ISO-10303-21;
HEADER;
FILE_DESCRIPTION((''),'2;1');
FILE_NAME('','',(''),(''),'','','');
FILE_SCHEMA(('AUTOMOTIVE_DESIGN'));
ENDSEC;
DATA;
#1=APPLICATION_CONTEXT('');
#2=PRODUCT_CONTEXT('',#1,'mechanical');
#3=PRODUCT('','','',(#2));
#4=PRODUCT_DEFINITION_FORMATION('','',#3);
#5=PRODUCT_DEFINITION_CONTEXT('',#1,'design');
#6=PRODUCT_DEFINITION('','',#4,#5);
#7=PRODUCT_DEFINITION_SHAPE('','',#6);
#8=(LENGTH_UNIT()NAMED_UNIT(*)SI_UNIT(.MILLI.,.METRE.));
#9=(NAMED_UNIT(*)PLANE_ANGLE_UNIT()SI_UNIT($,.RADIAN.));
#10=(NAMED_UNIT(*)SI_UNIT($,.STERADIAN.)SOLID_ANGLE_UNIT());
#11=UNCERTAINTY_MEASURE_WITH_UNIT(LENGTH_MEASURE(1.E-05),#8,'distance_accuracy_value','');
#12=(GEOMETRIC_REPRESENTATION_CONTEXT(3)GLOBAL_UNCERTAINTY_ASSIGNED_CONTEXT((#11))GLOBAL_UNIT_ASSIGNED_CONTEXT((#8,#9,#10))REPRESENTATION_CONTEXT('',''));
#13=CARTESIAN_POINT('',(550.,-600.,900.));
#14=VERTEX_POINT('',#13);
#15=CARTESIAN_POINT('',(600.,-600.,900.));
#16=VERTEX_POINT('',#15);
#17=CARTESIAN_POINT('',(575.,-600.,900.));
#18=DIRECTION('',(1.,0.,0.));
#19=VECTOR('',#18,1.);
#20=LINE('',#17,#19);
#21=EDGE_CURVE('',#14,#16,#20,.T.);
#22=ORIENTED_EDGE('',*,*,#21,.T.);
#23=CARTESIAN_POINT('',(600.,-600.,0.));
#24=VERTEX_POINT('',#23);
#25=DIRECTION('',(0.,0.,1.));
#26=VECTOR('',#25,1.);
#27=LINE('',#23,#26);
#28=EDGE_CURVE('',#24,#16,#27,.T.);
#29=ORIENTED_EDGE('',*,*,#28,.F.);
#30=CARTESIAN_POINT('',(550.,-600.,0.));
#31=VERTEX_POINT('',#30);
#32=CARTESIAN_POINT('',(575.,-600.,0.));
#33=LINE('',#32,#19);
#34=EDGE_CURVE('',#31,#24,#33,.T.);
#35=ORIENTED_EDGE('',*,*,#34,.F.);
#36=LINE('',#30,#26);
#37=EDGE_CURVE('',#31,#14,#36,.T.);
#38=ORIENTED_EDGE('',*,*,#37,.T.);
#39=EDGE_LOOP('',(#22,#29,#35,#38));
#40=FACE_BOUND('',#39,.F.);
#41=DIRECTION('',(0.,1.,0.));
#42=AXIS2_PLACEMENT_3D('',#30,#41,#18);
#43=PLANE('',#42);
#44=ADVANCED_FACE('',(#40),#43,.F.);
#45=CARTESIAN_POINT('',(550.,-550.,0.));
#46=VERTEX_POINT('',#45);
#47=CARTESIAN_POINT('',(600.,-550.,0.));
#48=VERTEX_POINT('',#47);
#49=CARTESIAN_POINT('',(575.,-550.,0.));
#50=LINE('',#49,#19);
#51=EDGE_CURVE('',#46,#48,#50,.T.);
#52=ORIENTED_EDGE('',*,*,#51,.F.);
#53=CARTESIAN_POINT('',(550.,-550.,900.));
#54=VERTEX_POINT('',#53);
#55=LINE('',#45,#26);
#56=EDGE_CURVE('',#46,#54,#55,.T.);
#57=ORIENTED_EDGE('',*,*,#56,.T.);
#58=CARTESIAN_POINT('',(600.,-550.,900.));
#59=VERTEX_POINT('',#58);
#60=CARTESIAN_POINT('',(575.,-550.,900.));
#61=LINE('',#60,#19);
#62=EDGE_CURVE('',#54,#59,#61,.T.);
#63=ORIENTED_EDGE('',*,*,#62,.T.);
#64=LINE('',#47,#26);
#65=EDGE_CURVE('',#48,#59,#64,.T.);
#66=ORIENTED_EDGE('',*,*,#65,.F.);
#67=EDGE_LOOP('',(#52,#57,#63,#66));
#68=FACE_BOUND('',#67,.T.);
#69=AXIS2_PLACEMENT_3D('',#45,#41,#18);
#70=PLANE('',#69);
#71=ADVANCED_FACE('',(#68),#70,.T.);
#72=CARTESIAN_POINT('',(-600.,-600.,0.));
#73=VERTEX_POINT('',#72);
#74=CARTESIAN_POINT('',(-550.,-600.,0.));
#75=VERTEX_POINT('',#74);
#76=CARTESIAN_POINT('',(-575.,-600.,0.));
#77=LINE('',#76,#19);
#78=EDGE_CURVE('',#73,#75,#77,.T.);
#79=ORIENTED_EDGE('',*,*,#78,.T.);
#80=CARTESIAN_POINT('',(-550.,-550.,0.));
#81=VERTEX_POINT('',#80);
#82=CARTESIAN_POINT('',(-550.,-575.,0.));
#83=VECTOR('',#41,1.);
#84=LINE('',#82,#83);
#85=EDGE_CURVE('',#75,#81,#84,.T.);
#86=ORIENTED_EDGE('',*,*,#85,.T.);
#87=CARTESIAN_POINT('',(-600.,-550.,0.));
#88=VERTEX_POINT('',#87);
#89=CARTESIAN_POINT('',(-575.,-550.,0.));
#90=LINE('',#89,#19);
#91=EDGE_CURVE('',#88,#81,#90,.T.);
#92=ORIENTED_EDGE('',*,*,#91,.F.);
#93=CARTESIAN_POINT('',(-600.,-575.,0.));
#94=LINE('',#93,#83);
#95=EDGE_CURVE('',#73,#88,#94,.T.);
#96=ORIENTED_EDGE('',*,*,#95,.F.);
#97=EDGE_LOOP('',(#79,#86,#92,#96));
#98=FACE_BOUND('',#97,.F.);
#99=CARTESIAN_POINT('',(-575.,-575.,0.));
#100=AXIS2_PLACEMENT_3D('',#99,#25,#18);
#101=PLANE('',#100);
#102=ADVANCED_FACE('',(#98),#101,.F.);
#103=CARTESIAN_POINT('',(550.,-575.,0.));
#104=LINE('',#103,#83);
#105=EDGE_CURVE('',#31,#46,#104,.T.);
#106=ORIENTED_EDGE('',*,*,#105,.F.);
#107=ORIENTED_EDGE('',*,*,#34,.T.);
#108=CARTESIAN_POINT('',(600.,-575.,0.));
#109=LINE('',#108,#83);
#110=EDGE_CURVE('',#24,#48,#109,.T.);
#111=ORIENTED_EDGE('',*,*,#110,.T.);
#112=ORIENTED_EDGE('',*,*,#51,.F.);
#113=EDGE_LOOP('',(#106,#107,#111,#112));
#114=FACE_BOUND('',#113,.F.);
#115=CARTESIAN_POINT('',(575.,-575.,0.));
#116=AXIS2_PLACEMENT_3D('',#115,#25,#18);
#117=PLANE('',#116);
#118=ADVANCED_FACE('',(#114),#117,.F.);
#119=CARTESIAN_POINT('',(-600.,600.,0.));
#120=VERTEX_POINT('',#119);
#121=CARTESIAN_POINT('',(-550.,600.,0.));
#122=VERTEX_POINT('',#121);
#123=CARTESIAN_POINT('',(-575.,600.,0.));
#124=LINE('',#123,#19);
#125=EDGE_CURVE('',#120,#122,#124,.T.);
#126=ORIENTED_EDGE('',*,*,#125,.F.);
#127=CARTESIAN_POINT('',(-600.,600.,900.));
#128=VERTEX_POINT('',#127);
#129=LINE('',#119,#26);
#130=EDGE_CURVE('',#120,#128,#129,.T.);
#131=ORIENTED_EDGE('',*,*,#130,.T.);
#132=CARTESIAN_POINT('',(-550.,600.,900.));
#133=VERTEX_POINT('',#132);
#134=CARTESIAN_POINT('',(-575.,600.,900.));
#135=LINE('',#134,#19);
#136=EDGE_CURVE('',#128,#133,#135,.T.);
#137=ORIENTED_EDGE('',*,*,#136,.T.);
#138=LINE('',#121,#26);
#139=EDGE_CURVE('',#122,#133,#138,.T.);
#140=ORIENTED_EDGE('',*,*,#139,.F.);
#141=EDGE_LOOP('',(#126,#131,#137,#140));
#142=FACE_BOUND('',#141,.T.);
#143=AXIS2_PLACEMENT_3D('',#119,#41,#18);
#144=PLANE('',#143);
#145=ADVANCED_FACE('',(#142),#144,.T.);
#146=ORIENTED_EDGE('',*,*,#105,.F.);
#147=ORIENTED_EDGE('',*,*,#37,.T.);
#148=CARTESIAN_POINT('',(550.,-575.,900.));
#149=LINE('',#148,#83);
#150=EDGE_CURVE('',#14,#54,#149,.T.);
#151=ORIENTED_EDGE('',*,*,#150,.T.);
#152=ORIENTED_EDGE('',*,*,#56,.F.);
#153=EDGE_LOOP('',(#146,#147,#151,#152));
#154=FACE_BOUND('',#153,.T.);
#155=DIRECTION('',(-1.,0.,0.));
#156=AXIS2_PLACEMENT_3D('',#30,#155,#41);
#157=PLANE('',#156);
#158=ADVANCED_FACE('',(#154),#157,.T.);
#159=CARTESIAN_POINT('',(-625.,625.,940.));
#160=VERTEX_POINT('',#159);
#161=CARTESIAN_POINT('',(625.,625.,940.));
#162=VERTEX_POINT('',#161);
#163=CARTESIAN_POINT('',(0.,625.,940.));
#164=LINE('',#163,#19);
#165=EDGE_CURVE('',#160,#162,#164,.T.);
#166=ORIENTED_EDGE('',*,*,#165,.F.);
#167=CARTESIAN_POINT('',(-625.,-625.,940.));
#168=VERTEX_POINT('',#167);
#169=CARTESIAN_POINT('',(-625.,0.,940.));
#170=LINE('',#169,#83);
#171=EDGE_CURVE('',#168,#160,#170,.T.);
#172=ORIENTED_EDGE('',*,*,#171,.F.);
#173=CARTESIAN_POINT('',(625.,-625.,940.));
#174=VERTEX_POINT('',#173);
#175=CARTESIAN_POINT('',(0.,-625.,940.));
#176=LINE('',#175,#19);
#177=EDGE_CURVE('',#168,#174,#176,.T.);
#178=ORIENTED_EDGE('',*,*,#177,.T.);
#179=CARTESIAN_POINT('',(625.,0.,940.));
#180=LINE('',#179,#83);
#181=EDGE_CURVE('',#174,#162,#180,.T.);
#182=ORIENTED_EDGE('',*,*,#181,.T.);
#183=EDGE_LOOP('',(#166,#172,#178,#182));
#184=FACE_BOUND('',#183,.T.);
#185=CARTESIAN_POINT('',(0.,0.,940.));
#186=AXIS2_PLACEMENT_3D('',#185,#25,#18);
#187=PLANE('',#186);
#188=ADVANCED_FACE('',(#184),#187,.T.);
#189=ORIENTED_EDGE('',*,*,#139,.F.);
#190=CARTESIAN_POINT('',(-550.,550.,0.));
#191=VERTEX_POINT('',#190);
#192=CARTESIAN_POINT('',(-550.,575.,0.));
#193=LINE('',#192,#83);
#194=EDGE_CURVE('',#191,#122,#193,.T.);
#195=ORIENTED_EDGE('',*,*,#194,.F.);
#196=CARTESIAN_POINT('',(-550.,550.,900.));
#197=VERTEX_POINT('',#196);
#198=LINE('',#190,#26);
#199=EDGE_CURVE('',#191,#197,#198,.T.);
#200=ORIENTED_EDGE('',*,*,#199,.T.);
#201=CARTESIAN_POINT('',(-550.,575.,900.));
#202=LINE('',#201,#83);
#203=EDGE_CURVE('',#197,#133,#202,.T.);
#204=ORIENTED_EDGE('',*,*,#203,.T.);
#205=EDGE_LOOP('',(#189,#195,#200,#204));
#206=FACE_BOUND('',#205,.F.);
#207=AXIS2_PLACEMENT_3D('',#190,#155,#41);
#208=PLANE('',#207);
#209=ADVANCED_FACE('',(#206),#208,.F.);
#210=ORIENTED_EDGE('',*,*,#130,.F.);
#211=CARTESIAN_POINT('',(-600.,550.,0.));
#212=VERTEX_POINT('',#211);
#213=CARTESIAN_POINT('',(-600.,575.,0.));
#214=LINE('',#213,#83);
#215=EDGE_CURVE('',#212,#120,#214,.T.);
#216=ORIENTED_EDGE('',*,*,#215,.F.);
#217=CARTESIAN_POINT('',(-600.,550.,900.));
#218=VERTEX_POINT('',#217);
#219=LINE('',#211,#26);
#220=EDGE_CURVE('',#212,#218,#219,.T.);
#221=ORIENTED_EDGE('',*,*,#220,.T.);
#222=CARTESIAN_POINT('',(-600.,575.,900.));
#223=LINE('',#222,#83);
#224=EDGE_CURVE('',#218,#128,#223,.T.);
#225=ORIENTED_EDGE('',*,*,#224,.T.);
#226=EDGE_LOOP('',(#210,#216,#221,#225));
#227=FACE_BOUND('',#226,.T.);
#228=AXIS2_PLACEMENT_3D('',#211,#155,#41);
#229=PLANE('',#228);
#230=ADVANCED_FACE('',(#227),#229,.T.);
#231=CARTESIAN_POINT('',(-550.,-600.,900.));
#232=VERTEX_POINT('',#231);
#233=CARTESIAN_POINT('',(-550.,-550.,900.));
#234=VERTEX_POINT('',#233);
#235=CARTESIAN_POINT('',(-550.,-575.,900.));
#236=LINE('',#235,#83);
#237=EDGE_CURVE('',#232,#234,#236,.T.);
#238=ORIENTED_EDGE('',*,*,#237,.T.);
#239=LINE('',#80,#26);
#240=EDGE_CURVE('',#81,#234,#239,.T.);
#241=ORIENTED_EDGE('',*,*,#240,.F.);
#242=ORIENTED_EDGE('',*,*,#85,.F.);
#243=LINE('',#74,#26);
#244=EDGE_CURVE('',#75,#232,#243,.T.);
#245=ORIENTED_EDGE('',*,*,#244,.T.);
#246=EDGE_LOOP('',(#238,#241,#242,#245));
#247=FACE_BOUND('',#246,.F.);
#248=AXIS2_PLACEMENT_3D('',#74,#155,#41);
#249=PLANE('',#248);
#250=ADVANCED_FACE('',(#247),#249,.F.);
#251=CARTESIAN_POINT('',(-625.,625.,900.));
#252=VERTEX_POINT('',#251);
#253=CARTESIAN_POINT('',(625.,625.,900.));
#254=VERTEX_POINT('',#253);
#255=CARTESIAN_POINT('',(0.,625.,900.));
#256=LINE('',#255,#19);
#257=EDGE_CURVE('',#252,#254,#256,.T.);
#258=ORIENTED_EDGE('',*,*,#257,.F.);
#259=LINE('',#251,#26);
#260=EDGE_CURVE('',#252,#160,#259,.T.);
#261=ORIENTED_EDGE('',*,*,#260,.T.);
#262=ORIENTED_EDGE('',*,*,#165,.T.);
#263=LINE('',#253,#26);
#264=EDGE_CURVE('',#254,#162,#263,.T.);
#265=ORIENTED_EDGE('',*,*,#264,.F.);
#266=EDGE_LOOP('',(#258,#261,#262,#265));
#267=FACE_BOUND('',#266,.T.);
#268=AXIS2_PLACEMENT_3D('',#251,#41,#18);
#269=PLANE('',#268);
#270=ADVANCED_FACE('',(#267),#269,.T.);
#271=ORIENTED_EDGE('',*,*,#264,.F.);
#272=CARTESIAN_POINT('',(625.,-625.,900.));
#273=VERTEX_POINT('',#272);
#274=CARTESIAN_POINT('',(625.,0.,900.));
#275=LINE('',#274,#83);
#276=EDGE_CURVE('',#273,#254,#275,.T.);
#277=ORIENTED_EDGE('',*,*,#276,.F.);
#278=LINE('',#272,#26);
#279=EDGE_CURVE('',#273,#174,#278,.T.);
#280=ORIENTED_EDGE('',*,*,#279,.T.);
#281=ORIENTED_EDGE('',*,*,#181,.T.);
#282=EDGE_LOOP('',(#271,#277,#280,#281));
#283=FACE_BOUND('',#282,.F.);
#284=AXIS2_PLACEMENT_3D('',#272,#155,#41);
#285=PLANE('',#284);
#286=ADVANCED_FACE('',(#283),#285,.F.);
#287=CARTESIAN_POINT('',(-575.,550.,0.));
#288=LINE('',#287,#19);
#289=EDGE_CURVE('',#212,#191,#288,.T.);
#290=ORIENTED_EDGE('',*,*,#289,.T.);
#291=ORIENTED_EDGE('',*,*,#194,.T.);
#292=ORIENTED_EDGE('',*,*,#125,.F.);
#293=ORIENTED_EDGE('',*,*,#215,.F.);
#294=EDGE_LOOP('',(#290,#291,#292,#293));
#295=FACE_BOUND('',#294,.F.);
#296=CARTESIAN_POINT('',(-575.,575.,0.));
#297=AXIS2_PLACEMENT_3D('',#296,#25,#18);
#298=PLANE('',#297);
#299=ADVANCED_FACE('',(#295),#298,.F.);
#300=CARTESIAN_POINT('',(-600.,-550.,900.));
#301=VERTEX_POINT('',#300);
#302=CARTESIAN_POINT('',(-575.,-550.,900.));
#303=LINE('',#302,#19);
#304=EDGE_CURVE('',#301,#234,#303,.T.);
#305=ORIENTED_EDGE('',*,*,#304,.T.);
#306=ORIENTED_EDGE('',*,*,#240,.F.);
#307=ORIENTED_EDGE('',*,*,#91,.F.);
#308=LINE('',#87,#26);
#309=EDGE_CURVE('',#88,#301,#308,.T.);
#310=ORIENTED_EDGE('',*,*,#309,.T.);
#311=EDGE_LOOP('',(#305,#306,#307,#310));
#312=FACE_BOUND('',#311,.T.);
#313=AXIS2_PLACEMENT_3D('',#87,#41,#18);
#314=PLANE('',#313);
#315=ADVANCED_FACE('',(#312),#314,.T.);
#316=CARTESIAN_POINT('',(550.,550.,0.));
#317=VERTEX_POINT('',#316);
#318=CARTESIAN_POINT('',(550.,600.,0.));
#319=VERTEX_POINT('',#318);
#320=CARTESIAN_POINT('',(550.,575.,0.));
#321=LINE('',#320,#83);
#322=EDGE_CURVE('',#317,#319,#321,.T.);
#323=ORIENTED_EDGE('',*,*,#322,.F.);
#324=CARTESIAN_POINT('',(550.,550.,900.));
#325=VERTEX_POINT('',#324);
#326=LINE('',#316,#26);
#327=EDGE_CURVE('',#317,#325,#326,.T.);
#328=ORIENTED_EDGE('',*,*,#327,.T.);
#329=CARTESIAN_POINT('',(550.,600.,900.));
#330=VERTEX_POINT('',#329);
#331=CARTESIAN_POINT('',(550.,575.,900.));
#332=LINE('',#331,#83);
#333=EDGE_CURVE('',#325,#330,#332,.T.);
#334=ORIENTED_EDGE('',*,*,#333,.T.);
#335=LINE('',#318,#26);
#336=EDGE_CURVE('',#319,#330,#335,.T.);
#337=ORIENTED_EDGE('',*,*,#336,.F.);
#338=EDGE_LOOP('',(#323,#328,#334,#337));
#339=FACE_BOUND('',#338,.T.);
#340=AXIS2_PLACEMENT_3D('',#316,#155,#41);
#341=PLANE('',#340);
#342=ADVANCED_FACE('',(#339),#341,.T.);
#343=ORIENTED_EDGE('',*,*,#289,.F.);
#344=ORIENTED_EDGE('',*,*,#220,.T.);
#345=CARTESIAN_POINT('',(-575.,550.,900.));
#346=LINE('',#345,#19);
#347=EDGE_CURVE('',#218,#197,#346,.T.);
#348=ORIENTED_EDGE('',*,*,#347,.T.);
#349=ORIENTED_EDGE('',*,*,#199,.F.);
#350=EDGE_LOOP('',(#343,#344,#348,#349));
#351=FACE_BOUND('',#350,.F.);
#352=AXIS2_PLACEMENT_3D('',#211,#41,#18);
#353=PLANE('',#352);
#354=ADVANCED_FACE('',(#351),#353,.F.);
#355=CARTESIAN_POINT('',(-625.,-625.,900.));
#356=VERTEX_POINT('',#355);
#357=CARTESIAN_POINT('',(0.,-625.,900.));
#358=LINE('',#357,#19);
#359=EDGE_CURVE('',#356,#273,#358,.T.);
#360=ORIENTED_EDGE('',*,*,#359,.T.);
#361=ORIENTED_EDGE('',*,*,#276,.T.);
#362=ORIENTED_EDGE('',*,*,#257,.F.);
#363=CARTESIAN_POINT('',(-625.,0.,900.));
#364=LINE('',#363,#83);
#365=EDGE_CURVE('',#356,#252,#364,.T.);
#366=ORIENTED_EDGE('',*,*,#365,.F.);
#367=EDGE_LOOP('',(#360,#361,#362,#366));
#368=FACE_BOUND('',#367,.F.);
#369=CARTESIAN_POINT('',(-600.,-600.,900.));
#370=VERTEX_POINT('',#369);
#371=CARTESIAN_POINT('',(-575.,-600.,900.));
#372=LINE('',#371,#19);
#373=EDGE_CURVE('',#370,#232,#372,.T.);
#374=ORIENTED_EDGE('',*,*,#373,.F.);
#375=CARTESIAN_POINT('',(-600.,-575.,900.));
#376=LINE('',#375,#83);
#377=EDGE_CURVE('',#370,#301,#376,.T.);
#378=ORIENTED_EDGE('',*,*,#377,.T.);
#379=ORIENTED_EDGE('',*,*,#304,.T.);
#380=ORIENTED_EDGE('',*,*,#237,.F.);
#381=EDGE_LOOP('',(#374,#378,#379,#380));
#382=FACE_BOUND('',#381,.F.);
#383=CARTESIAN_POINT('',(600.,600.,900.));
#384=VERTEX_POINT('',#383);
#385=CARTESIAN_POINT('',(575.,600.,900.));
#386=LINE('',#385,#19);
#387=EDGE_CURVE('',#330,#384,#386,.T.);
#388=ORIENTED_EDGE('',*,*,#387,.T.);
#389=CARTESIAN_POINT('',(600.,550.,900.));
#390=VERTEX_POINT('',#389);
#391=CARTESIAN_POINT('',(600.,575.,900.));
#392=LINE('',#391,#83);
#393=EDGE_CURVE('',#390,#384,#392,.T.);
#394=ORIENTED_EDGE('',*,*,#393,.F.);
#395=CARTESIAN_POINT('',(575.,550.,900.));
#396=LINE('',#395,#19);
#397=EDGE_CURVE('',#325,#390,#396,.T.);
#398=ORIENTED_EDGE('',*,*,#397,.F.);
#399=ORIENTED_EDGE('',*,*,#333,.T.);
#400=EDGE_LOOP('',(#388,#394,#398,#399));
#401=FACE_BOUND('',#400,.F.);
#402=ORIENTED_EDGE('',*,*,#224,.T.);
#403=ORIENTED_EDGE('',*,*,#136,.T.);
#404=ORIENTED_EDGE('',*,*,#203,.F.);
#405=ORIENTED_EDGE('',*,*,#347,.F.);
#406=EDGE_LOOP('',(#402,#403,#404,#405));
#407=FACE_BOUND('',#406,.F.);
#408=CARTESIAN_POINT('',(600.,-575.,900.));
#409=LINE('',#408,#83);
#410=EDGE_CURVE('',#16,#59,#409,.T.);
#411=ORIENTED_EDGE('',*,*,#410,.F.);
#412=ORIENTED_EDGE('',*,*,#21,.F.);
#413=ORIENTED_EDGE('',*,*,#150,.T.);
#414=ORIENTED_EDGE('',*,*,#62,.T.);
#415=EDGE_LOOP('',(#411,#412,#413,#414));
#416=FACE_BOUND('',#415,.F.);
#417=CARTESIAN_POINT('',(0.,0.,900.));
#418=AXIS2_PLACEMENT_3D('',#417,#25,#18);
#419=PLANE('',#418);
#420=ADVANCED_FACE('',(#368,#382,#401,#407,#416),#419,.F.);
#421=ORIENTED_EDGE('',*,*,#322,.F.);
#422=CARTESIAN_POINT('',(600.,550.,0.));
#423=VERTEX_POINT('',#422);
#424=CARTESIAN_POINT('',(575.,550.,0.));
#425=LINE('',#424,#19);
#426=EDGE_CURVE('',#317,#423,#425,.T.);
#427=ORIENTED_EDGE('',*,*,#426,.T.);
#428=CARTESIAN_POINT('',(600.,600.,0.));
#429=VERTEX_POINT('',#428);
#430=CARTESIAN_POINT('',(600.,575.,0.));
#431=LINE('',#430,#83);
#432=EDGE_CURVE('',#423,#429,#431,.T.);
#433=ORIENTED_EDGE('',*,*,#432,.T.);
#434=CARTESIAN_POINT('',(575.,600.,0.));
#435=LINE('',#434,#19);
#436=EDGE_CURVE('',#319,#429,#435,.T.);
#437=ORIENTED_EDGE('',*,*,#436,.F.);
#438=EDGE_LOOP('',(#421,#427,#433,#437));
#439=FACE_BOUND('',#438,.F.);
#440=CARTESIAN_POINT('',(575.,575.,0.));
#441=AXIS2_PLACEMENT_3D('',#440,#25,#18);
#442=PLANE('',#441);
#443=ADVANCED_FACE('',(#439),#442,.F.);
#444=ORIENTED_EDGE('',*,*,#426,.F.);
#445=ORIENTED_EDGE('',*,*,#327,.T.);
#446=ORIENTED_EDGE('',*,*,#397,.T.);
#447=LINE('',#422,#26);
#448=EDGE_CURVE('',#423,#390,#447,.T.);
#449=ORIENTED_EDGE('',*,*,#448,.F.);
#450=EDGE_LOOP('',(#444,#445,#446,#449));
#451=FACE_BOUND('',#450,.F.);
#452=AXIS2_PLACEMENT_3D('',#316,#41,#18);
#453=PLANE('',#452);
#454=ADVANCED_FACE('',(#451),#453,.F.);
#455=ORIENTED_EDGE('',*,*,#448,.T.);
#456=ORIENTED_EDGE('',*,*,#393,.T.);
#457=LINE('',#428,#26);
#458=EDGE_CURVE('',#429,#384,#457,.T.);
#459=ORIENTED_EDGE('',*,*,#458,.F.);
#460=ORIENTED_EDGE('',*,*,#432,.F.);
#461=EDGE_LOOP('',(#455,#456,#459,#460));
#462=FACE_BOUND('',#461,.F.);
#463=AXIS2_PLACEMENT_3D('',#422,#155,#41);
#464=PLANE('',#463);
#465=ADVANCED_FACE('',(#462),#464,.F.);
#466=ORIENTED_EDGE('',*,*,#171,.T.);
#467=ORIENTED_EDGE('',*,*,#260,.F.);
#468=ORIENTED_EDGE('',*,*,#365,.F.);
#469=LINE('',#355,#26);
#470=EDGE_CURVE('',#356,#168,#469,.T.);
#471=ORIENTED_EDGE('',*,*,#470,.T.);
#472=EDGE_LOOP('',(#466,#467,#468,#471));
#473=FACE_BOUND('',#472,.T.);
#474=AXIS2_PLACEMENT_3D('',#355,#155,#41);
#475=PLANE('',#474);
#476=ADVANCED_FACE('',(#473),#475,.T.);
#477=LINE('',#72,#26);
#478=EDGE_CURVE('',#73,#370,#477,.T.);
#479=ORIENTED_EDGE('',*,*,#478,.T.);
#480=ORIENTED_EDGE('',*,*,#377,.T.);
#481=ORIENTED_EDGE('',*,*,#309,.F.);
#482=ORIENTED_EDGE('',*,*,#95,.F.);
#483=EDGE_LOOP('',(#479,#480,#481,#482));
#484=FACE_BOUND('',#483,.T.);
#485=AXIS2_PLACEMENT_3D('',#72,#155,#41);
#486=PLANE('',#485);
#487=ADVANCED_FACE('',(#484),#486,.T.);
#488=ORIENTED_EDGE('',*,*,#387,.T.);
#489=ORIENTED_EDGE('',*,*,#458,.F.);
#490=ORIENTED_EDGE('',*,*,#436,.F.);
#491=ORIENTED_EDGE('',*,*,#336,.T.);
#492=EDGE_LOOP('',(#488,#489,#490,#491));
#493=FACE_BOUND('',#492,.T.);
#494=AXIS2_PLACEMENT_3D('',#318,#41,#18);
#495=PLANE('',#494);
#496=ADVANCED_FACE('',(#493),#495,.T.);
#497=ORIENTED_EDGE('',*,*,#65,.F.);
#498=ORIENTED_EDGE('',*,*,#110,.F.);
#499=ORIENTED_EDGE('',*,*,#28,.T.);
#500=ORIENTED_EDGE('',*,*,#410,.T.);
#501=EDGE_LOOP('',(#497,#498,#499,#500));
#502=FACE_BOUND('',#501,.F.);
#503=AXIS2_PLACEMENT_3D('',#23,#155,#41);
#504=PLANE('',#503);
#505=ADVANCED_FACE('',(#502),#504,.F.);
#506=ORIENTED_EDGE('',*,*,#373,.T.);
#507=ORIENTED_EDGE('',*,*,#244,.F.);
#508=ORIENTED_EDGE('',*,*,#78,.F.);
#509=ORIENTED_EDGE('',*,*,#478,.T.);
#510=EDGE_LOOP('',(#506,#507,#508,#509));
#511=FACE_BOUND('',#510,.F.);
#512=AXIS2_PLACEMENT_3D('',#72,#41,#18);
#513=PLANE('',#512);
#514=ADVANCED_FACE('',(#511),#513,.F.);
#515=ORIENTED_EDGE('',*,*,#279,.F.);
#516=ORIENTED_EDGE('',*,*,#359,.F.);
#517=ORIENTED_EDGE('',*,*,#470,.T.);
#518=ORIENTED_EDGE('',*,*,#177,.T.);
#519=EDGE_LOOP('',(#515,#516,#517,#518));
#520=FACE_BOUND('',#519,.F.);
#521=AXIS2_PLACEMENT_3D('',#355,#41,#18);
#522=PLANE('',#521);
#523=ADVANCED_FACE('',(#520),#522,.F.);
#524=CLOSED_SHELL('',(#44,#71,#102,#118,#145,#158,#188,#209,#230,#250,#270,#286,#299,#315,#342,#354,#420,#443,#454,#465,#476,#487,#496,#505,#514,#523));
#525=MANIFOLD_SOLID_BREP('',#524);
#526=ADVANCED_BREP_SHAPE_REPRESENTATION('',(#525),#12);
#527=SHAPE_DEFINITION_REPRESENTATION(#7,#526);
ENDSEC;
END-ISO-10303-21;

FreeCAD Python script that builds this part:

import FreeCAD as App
import Part
import Sketcher


def add_polygon(sketch, points):
    """Adds a closed chain of lines whose ends are joined by coincident constraints."""
    first, n = sketch.GeometryCount, len(points)
    for a, b in zip(points, points[1:] + points[:1]):
        sketch.addGeometry(Part.LineSegment(App.Vector(*a, 0), App.Vector(*b, 0)), False)
    for i in range(n):
        sketch.addConstraint(Sketcher.Constraint("Coincident", first + i, 2, first + (i + 1) % n, 1))

doc = App.newDocument("Part")
body = doc.addObject("PartDesign::Body", "Body")
body.AllowCompound = True

# Sketch on XY plane
sketch1 = doc.addObject("Sketcher::SketchObject", "Sketch")
body.addObject(sketch1)
sketch1.AttachmentSupport = (doc.XY_Plane, [""])
sketch1.MapMode = "FlatFace"
add_polygon(sketch1, [(-600, 600), (-600, 550), (-550, 550), (-550, 600)])  # lines 0-3
add_polygon(sketch1, [(550, 600), (550, 550), (600, 550), (600, 600)])  # lines 4-7
add_polygon(sketch1, [(550, -550), (550, -600), (600, -600), (600, -550)])  # lines 8-11
add_polygon(sketch1, [(-600, -550), (-600, -600), (-550, -600), (-550, -550)])  # lines 12-15
sketch1.addConstraint([
    Sketcher.Constraint("Vertical", 0),
    Sketcher.Constraint("Horizontal", 1),
    Sketcher.Constraint("Vertical", 2),
    Sketcher.Constraint("Horizontal", 3),
    Sketcher.Constraint("Vertical", 4),
    Sketcher.Constraint("Horizontal", 5),
    Sketcher.Constraint("Vertical", 6),
    Sketcher.Constraint("Horizontal", 7),
    Sketcher.Constraint("Vertical", 8),
    Sketcher.Constraint("Horizontal", 9),
    Sketcher.Constraint("Vertical", 10),
    Sketcher.Constraint("Horizontal", 11),
    Sketcher.Constraint("Vertical", 12),
    Sketcher.Constraint("Horizontal", 13),
    Sketcher.Constraint("Vertical", 14),
    Sketcher.Constraint("Horizontal", 15),
    Sketcher.Constraint("Symmetric", 2, 2, 8, 2, -1, 1),
    Sketcher.Constraint("Symmetric", 0, 2, 10, 2, -1, 1),
    Sketcher.Constraint("Symmetric", 6, 2, 12, 2, -1, 1),
    Sketcher.Constraint("Symmetric", 4, 2, 14, 2, -1, 1),
    Sketcher.Constraint("Symmetric", 1, 2, 4, 2, -2),
    Sketcher.Constraint("Symmetric", 3, 2, 6, 2, -2),
    Sketcher.Constraint("Equal", 15, 0),
    Sketcher.Constraint("DistanceX", 1, 1, 1, 2, 50.0),
    Sketcher.Constraint("DistanceX", 0, 2, -1, 1, 600.0),
    Sketcher.Constraint("DistanceY", -1, 1, 0, 2, 550.0),
])
pad1 = doc.addObject("PartDesign::Pad", "Pad")
body.addObject(pad1)
pad1.Profile = sketch1
pad1.Length = 900

# Sketch on XY plane
sketch2 = doc.addObject("Sketcher::SketchObject", "Sketch001")
body.addObject(sketch2)
sketch2.AttachmentSupport = (doc.XY_Plane, [""])
sketch2.MapMode = "FlatFace"
sketch2.AttachmentOffset = App.Placement(App.Vector(0, 0, 900), App.Rotation())
add_polygon(sketch2, [(-625, 625), (-625, -625), (625, -625), (625, 625)])  # lines 0-3
sketch2.addConstraint([
    Sketcher.Constraint("Vertical", 0),
    Sketcher.Constraint("Horizontal", 1),
    Sketcher.Constraint("Vertical", 2),
    Sketcher.Constraint("Horizontal", 3),
    Sketcher.Constraint("Symmetric", 0, 2, 2, 2, -1, 1),
    Sketcher.Constraint("Equal", 3, 0),
    Sketcher.Constraint("DistanceX", 1, 1, 1, 2, 1250.0),
])
pad2 = doc.addObject("PartDesign::Pad", "Pad001")
body.addObject(pad2)
pad2.Profile = sketch2
pad2.Length = 40

doc.recompute()
